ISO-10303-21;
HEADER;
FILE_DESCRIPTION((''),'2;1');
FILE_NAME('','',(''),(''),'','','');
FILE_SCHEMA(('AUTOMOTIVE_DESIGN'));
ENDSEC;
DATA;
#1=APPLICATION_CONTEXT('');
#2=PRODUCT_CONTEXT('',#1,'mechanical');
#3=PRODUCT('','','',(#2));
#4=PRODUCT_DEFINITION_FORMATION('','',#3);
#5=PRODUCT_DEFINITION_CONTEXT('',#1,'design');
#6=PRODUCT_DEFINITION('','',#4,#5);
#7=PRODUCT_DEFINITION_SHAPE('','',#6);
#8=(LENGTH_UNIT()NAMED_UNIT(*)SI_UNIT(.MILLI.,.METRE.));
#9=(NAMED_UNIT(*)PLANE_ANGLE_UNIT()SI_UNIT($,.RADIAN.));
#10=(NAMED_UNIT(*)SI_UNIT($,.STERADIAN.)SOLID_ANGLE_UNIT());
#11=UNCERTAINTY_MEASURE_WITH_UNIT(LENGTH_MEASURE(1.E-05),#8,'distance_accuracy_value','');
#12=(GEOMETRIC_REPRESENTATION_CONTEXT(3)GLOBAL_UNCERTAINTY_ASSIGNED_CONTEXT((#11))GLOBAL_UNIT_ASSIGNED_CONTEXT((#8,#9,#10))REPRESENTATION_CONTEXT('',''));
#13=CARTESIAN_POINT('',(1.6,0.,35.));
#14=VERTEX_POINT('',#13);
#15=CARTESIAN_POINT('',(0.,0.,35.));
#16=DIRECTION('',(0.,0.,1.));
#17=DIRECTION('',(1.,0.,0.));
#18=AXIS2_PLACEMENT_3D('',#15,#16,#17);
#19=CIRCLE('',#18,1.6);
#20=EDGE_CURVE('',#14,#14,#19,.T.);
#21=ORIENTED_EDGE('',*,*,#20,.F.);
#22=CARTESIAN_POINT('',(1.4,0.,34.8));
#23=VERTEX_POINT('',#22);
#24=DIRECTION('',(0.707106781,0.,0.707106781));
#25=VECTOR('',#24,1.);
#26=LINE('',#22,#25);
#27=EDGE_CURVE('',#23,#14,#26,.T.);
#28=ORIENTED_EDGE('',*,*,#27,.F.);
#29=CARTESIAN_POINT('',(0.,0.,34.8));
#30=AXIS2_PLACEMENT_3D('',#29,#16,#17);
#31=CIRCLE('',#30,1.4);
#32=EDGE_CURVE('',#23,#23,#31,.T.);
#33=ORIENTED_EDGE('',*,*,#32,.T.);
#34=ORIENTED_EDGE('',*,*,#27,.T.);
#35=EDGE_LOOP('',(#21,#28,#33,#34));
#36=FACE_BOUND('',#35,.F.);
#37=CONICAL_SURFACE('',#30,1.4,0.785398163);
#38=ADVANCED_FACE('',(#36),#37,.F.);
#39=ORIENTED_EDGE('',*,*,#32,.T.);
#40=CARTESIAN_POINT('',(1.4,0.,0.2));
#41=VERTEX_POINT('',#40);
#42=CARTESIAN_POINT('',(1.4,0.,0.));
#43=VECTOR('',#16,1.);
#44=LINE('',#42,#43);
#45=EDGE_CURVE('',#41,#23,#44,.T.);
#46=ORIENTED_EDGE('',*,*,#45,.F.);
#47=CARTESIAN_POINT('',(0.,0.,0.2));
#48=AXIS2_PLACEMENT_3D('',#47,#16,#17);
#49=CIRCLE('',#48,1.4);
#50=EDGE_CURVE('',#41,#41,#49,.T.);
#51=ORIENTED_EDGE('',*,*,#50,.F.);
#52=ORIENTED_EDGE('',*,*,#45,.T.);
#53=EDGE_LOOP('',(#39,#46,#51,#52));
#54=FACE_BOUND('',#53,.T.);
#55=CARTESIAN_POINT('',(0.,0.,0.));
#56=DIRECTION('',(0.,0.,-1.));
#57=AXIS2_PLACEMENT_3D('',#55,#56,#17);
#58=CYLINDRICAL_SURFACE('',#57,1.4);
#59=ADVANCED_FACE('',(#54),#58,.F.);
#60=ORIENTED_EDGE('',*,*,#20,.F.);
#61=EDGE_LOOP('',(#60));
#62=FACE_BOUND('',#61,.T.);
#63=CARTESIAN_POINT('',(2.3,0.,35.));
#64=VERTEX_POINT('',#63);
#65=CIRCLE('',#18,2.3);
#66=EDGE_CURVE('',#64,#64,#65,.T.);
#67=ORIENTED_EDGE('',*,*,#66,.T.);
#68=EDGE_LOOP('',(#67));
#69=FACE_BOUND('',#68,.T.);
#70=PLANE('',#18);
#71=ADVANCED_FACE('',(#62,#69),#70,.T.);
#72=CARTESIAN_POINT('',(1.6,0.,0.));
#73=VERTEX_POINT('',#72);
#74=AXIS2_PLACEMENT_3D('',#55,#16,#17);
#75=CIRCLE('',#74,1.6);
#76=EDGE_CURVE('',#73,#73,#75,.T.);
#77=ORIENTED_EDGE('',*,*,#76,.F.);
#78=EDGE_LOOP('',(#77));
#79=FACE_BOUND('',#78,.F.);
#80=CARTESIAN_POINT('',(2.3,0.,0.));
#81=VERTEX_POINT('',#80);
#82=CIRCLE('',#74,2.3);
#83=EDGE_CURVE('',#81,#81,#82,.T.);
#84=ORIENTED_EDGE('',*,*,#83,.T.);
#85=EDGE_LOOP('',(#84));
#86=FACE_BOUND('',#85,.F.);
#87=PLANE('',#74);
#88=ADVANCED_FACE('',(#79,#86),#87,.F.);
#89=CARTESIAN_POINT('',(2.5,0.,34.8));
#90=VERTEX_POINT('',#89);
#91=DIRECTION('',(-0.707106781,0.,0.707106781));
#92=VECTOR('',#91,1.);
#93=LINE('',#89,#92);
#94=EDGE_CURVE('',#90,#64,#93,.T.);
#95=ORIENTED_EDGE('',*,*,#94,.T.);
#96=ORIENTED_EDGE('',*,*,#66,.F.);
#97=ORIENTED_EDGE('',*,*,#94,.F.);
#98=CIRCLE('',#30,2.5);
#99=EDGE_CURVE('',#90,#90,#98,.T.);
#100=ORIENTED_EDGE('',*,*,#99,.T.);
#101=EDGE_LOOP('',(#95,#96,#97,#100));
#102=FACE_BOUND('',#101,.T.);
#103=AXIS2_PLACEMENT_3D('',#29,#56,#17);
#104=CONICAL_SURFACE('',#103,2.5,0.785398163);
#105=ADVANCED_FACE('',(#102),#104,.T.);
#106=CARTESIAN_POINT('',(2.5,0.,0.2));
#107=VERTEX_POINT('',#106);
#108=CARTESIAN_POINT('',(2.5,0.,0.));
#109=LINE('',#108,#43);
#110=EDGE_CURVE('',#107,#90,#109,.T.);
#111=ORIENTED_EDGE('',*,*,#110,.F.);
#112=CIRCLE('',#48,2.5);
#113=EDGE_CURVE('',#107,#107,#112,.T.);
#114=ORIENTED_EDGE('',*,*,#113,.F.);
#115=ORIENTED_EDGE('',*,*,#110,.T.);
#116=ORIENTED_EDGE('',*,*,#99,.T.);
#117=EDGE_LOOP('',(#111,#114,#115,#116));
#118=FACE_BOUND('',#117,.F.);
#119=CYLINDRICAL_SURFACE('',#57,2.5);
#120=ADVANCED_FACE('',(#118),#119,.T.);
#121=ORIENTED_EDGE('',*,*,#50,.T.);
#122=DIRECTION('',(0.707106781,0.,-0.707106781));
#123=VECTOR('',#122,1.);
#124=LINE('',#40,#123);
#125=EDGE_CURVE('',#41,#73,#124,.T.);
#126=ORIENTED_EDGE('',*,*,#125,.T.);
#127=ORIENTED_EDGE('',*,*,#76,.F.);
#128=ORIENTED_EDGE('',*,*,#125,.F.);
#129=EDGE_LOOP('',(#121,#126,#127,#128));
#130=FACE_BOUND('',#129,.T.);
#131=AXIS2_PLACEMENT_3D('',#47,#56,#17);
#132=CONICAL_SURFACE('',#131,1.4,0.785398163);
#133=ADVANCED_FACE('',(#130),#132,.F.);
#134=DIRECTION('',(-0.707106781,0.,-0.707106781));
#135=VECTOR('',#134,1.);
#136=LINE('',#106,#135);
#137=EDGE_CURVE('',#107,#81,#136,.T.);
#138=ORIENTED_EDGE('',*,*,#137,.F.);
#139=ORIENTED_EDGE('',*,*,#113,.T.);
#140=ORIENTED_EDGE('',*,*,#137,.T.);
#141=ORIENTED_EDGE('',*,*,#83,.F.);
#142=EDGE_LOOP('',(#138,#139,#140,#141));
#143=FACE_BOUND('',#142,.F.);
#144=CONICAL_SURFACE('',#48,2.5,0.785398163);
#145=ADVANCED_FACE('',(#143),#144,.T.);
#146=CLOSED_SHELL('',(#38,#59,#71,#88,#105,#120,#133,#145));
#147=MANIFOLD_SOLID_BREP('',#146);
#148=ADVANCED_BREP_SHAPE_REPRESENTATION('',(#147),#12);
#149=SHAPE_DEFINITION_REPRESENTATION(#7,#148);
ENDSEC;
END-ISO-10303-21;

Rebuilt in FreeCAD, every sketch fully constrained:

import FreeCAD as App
import Part
import Sketcher
from FreeCAD import Vector


def edges_at(feature, points):
    """Names of the edges that pass closest to the given points."""
    edges = feature.Shape.Edges
    near = lambda p: min(range(len(edges)), key=lambda i: edges[i].distToShape(Part.Vertex(*p))[0])
    return sorted({f"Edge{near(p) + 1}" for p in points})

doc = App.newDocument("Part")
body = doc.addObject("PartDesign::Body", "Body")

sketch1 = doc.addObject("Sketcher::SketchObject", "Sketch")
body.addObject(sketch1)
sketch1.AttachmentSupport = (doc.XY_Plane, [""])
sketch1.MapMode = "FlatFace"
sketch1.addGeometry([
    Part.Circle(Vector(0, 0, 0), Vector(0, 0, 1), 2.5),
    Part.Circle(Vector(0, 0, 0), Vector(0, 0, 1), 1.4),
], False)
sketch1.addConstraint([
    Sketcher.Constraint("Coincident", 0, 3, -1, 1),
    Sketcher.Constraint("Coincident", 1, 3, -1, 1),
    Sketcher.Constraint("Diameter", 0, 5.0),
    Sketcher.Constraint("Diameter", 1, 2.8),
])
pad1 = doc.addObject("PartDesign::Pad", "Pad")
body.addObject(pad1)
pad1.Profile = sketch1
pad1.Length = 35
doc.recompute()

chamfer = doc.addObject("PartDesign::Chamfer", "Chamfer")
body.addObject(chamfer)
chamfer.Base = (pad1, edges_at(pad1, [
    (-1.4, 0, 0),
    (-2.5, 0, 0),
    (-1.4, 0, 35),
    (-2.5, 0, 35),
]))
chamfer.Size = 0.2

doc.recompute()
